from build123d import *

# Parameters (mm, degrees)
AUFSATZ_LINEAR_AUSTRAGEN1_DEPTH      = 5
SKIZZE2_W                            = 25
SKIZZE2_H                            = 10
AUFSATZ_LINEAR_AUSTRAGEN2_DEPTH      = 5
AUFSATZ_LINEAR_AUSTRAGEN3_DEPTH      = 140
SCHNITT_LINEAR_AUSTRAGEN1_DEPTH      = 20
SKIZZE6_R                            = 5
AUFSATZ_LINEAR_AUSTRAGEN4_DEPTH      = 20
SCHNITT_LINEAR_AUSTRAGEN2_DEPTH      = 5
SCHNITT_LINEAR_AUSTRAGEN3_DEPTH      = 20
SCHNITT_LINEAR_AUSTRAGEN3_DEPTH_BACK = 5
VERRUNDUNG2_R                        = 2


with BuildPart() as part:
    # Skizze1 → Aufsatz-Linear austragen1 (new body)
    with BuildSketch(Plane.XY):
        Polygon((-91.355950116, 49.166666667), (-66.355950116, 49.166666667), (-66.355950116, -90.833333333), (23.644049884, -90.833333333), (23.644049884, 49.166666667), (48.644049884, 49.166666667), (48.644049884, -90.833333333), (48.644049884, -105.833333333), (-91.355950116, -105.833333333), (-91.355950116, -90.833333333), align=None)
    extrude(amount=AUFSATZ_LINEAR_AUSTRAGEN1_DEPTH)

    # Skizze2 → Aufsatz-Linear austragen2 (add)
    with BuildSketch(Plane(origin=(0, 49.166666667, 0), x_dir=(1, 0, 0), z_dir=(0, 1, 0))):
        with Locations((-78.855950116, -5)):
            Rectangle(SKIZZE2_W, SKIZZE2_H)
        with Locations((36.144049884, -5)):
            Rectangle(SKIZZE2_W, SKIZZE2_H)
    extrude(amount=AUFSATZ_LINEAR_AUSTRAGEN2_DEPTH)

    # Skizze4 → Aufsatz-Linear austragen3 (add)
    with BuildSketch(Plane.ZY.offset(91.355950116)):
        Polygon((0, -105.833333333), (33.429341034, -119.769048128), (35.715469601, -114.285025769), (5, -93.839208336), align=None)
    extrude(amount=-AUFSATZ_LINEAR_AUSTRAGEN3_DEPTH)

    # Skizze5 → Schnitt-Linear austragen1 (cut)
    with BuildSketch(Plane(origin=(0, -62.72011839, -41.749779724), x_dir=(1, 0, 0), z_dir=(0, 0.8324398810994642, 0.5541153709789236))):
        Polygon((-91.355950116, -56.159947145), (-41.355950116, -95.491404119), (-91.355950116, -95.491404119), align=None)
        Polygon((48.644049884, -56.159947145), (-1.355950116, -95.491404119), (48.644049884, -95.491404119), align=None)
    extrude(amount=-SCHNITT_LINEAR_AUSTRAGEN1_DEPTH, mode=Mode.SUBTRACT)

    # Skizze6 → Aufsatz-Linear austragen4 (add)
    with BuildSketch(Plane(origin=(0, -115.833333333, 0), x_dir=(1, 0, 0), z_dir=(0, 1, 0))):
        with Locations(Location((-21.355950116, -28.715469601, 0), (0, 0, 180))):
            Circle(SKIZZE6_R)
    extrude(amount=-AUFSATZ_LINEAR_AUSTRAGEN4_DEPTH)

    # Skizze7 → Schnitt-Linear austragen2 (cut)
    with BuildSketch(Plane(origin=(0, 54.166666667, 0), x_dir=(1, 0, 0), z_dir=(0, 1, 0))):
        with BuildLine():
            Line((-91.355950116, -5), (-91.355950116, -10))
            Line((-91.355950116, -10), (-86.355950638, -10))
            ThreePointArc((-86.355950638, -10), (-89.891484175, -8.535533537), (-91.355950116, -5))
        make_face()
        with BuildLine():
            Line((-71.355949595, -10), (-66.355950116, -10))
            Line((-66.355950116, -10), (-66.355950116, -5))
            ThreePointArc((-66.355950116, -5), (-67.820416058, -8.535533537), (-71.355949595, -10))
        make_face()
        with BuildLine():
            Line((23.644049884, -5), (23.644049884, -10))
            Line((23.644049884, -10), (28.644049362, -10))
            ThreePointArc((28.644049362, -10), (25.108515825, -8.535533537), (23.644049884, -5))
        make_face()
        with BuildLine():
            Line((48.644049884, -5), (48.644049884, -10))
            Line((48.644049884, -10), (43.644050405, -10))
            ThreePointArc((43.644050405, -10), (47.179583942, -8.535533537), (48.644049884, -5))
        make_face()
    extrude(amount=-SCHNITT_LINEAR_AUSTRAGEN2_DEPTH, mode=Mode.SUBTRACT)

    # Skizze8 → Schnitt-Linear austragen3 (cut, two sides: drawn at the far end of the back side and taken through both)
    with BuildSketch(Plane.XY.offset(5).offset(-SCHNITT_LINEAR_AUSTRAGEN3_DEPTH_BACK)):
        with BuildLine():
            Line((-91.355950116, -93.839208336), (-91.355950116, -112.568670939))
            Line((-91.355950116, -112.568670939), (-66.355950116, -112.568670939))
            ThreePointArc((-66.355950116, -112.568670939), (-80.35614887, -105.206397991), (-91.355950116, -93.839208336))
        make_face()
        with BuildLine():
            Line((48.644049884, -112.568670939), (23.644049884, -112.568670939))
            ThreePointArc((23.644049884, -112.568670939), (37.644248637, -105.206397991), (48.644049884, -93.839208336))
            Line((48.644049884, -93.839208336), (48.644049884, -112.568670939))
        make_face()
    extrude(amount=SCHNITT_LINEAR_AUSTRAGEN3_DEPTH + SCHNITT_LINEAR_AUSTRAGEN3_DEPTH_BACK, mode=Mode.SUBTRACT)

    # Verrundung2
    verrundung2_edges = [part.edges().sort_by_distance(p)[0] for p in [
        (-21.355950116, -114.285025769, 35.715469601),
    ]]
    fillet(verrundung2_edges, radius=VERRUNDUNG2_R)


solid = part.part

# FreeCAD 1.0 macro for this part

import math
import FreeCAD as App
import Part
import Sketcher

V = App.Vector


def edges_at(feature, points):
    """Names of the edges that pass closest to the given points."""
    edges = feature.Shape.Edges
    near = lambda p: min(range(len(edges)), key=lambda i: edges[i].distToShape(Part.Vertex(*p))[0])
    return sorted({f"Edge{near(p) + 1}" for p in points})

doc = App.newDocument("Part")
body = doc.addObject("PartDesign::Body", "Body")

sketch1 = body.newObject("Sketcher::SketchObject", "Sketch")
sketch1.AttachmentSupport = (doc.getObject("XY_Plane"), [""])
sketch1.MapMode = "FlatFace"
sketch1.addGeometry([
    Part.LineSegment(V(-66.35595, 49.166667, 0), V(-91.35595, 49.166667, 0)),
    Part.LineSegment(V(-91.35595, 49.166667, 0), V(-91.35595, -105.833333, 0)),
    Part.LineSegment(V(-91.35595, -105.833333, 0), V(48.64405, -105.833333, 0)),
    Part.LineSegment(V(48.64405, -105.833333, 0), V(48.64405, 49.166667, 0)),
    Part.LineSegment(V(48.64405, 49.166667, 0), V(23.64405, 49.166667, 0)),
    Part.LineSegment(V(23.64405, 49.166667, 0), V(23.64405, -90.833333, 0)),
    Part.LineSegment(V(23.64405, -90.833333, 0), V(-66.35595, -90.833333, 0)),
    Part.LineSegment(V(-66.35595, -90.833333, 0), V(-66.35595, 49.166667, 0)),
], False)
sketch1.addConstraint([
    Sketcher.Constraint("Coincident", 0, 2, 1, 1),
    Sketcher.Constraint("Coincident", 1, 2, 2, 1),
    Sketcher.Constraint("Coincident", 2, 2, 3, 1),
    Sketcher.Constraint("Coincident", 3, 2, 4, 1),
    Sketcher.Constraint("Coincident", 4, 2, 5, 1),
    Sketcher.Constraint("Coincident", 5, 2, 6, 1),
    Sketcher.Constraint("Coincident", 6, 2, 7, 1),
    Sketcher.Constraint("Coincident", 7, 2, 0, 1),
    Sketcher.Constraint("Horizontal", 0),
    Sketcher.Constraint("Vertical", 1),
    Sketcher.Constraint("Horizontal", 2),
    Sketcher.Constraint("Vertical", 3),
    Sketcher.Constraint("Horizontal", 4),
    Sketcher.Constraint("Vertical", 5),
    Sketcher.Constraint("Horizontal", 6),
    Sketcher.Constraint("Vertical", 7),
    Sketcher.Constraint("Horizontal", 0, 2, 3, 2),
    Sketcher.Constraint("Equal", 0, 4),
    Sketcher.Constraint("Equal", 2, 5),
    Sketcher.Constraint("DistanceX", 0, 2, 0, 1, 25.0),
    Sketcher.Constraint("DistanceX", 2, 1, 2, 2, 140.0),
    Sketcher.Constraint("DistanceY", 1, 2, 1, 1, 155.0),
    Sketcher.Constraint("DistanceX", 0, 2, -1, 1, 91.35595),
    Sketcher.Constraint("DistanceY", -1, 1, 0, 2, 49.166667),
])
pad1 = body.newObject("PartDesign::Pad", "Pad")
pad1.Profile = sketch1
pad1.Length = 5

sketch2 = body.newObject("Sketcher::SketchObject", "Sketch001")
sketch2.AttachmentSupport = (doc.getObject("XZ_Plane"), [""])
sketch2.MapMode = "FlatFace"
sketch2.AttachmentOffset = App.Placement(V(0, 0, -49.166667), App.Rotation())
sketch2.addGeometry([
    Part.LineSegment(V(-91.35595, 0, 0), V(-91.35595, 10, 0)),
    Part.LineSegment(V(-91.35595, 10, 0), V(-66.35595, 10, 0)),
    Part.LineSegment(V(-66.35595, 10, 0), V(-66.35595, 0, 0)),
    Part.LineSegment(V(-66.35595, 0, 0), V(-91.35595, 0, 0)),
    Part.LineSegment(V(23.64405, 0, 0), V(23.64405, 10, 0)),
    Part.LineSegment(V(23.64405, 10, 0), V(48.64405, 10, 0)),
    Part.LineSegment(V(48.64405, 10, 0), V(48.64405, 0, 0)),
    Part.LineSegment(V(48.64405, 0, 0), V(23.64405, 0, 0)),
], False)
sketch2.addConstraint([
    Sketcher.Constraint("Coincident", 0, 2, 1, 1),
    Sketcher.Constraint("Coincident", 1, 2, 2, 1),
    Sketcher.Constraint("Coincident", 2, 2, 3, 1),
    Sketcher.Constraint("Coincident", 3, 2, 0, 1),
    Sketcher.Constraint("Coincident", 4, 2, 5, 1),
    Sketcher.Constraint("Coincident", 5, 2, 6, 1),
    Sketcher.Constraint("Coincident", 6, 2, 7, 1),
    Sketcher.Constraint("Coincident", 7, 2, 4, 1),
    Sketcher.Constraint("Vertical", 0),
    Sketcher.Constraint("Horizontal", 1),
    Sketcher.Constraint("Vertical", 2),
    Sketcher.Constraint("Horizontal", 3),
    Sketcher.Constraint("Vertical", 4),
    Sketcher.Constraint("Horizontal", 5),
    Sketcher.Constraint("Vertical", 6),
    Sketcher.Constraint("Horizontal", 7),
    Sketcher.Constraint("PointOnObject", 2, 2, -1),
    Sketcher.Constraint("PointOnObject", 6, 2, -1),
    Sketcher.Constraint("Horizontal", 1, 2, 4, 2),
    Sketcher.Constraint("Equal", 3, 5),
    Sketcher.Constraint("DistanceX", 1, 1, 1, 2, 25.0),
    Sketcher.Constraint("DistanceY", 0, 1, 0, 2, 10.0),
    Sketcher.Constraint("DistanceX", 1, 2, 4, 2, 90.0),
    Sketcher.Constraint("DistanceX", 0, 2, -1, 1, 91.35595),
])
pad2 = body.newObject("PartDesign::Pad", "Pad001")
pad2.Profile = sketch2
pad2.Length = 5
pad2.Reversed = True

sketch3 = body.newObject("Sketcher::SketchObject", "Sketch002")
sketch3.AttachmentSupport = (doc.getObject("YZ_Plane"), [""])
sketch3.MapMode = "FlatFace"
sketch3.AttachmentOffset = App.Placement(V(0, 0, -91.35595), App.Rotation())
sketch3.addGeometry([
    Part.LineSegment(V(-105.833333, 0, 0), V(-119.769048, 33.429341, 0)),
    Part.LineSegment(V(-119.769048, 33.429341, 0), V(-114.285026, 35.71547, 0)),
    Part.LineSegment(V(-114.285026, 35.71547, 0), V(-93.839208, 5, 0)),
    Part.LineSegment(V(-93.839208, 5, 0), V(-105.833333, 0, 0)),
], False)
sketch3.addConstraint([
    Sketcher.Constraint("Coincident", 0, 2, 1, 1),
    Sketcher.Constraint("Coincident", 1, 2, 2, 1),
    Sketcher.Constraint("Coincident", 2, 2, 3, 1),
    Sketcher.Constraint("Coincident", 3, 2, 0, 1),
    Sketcher.Constraint("PointOnObject", 3, 2, -1),
    Sketcher.Constraint("Perpendicular", 0, 1),
    Sketcher.Constraint("Parallel", 1, 3),
    Sketcher.Constraint("DistanceY", -1, 1, 2, 2, 5.0),
    Sketcher.Constraint("DistanceX", 0, 2, -1, 1, 119.769048),
    Sketcher.Constraint("DistanceY", -1, 1, 0, 2, 33.429341),
    Sketcher.Constraint("DistanceY", -1, 1, 1, 2, 35.71547),
    Sketcher.Constraint("DistanceX", 2, 2, -1, 1, 93.839208),
])
pad3 = body.newObject("PartDesign::Pad", "Pad002")
pad3.Profile = sketch3
pad3.Length = 140

sketch4 = body.newObject("Sketcher::SketchObject", "Sketch003")
sketch4.Placement = App.Placement(V(0, -62.720118, -41.74978), App.Rotation(V(1, 0, 0), V(0, 0.554115371, -0.832439881), V(0, 0.832439881, 0.554115371), "ZXY"))
sketch4.addGeometry([
    Part.LineSegment(V(-41.35595, -95.491404, 0), V(-91.35595, -56.159947, 0)),
    Part.LineSegment(V(-91.35595, -56.159947, 0), V(-91.35595, -95.491404, 0)),
    Part.LineSegment(V(-91.35595, -95.491404, 0), V(-41.35595, -95.491404, 0)),
    Part.LineSegment(V(48.64405, -56.159947, 0), V(-1.35595, -95.491404, 0)),
    Part.LineSegment(V(-1.35595, -95.491404, 0), V(48.64405, -95.491404, 0)),
    Part.LineSegment(V(48.64405, -95.491404, 0), V(48.64405, -56.159947, 0)),
], False)
sketch4.addConstraint([
    Sketcher.Constraint("Coincident", 0, 2, 1, 1),
    Sketcher.Constraint("Coincident", 1, 2, 2, 1),
    Sketcher.Constraint("Coincident", 2, 2, 0, 1),
    Sketcher.Constraint("Coincident", 3, 2, 4, 1),
    Sketcher.Constraint("Coincident", 4, 2, 5, 1),
    Sketcher.Constraint("Coincident", 5, 2, 3, 1),
    Sketcher.Constraint("Vertical", 1),
    Sketcher.Constraint("Horizontal", 2),
    Sketcher.Constraint("Horizontal", 4),
    Sketcher.Constraint("Vertical", 5),
    Sketcher.Constraint("Horizontal", 2, 2, 3, 2),
    Sketcher.Constraint("Horizontal", 0, 2, 5, 2),
    Sketcher.Constraint("Equal", 2, 4),
    Sketcher.Constraint("DistanceX", 2, 1, 2, 2, 50.0),
    Sketcher.Constraint("DistanceX", 2, 2, 3, 2, 40.0),
    Sketcher.Constraint("Distance", 0, 63.615749),
    Sketcher.Constraint("DistanceX", 0, 2, -1, 1, 91.35595),
    Sketcher.Constraint("DistanceY", 0, 2, -1, 1, 56.159947),
])
pocket1 = body.newObject("PartDesign::Pocket", "Pocket")
pocket1.Profile = sketch4
pocket1.Length = 20

sketch5 = body.newObject("Sketcher::SketchObject", "Sketch004")
sketch5.AttachmentSupport = (doc.getObject("XZ_Plane"), [""])
sketch5.MapMode = "FlatFace"
sketch5.AttachmentOffset = App.Placement(V(0, 0, 115.833333), App.Rotation())
sketch5.addGeometry(Part.Circle(V(-21.35595, 28.71547, 0), V(0, 0, 1), 5), False)
sketch5.addConstraint([
    Sketcher.Constraint("Diameter", 0, 10.0),
    Sketcher.Constraint("DistanceX", 0, 3, -1, 1, 21.35595),
    Sketcher.Constraint("DistanceY", -1, 1, 0, 3, 28.71547),
])
pad4 = body.newObject("PartDesign::Pad", "Pad003")
pad4.Profile = sketch5
pad4.Length = 20

sketch6 = body.newObject("Sketcher::SketchObject", "Sketch005")
sketch6.AttachmentSupport = (doc.getObject("XZ_Plane"), [""])
sketch6.MapMode = "FlatFace"
sketch6.AttachmentOffset = App.Placement(V(0, 0, -54.166667), App.Rotation())
sketch6.addGeometry([
    Part.LineSegment(V(-91.35595, 5, 0), V(-91.35595, 10, 0)),
    Part.LineSegment(V(-91.35595, 10, 0), V(-86.355951, 10, 0)),
    Part.ArcOfCircle(Part.Circle(V(-86.35595, 5, 0), V(0, 0, 1), 5), math.radians(90.00001), math.radians(179.999996)),
    Part.LineSegment(V(-71.35595, 10, 0), V(-66.35595, 10, 0)),
    Part.LineSegment(V(-66.35595, 10, 0), V(-66.35595, 5, 0)),
    Part.ArcOfCircle(Part.Circle(V(-71.35595, 5, 0), V(0, 0, 1), 5), math.radians(0.000004), math.radians(89.99999)),
    Part.LineSegment(V(23.64405, 5, 0), V(23.64405, 10, 0)),
    Part.LineSegment(V(23.64405, 10, 0), V(28.644049, 10, 0)),
    Part.ArcOfCircle(Part.Circle(V(28.64405, 5, 0), V(0, 0, 1), 5), math.radians(90.00001), math.radians(179.999996)),
    Part.LineSegment(V(48.64405, 10, 0), V(48.64405, 5, 0)),
    Part.ArcOfCircle(Part.Circle(V(43.64405, 5, 0), V(0, 0, 1), 5), math.radians(0.000004), math.radians(89.99999)),
    Part.LineSegment(V(43.64405, 10, 0), V(48.64405, 10, 0)),
], False)
sketch6.addConstraint([
    Sketcher.Constraint("Coincident", 0, 2, 1, 1),
    Sketcher.Constraint("Tangent", 1, 2, 2, 1),
    Sketcher.Constraint("Tangent", 2, 2, 0, 1),
    Sketcher.Constraint("Coincident", 3, 2, 4, 1),
    Sketcher.Constraint("Tangent", 4, 2, 5, 1),
    Sketcher.Constraint("Tangent", 5, 2, 3, 1),
    Sketcher.Constraint("Coincident", 6, 2, 7, 1),
    Sketcher.Constraint("Tangent", 7, 2, 8, 1),
    Sketcher.Constraint("Tangent", 8, 2, 6, 1),
    Sketcher.Constraint("Tangent", 9, 2, 10, 1),
    Sketcher.Constraint("Tangent", 10, 2, 11, 1),
    Sketcher.Constraint("Coincident", 11, 2, 9, 1),
    Sketcher.Constraint("Vertical", 0),
    Sketcher.Constraint("Horizontal", 1),
    Sketcher.Constraint("Horizontal", 3),
    Sketcher.Constraint("Vertical", 4),
    Sketcher.Constraint("Vertical", 6),
    Sketcher.Constraint("Horizontal", 7),
    Sketcher.Constraint("Vertical", 9),
    Sketcher.Constraint("Horizontal", 11),
    Sketcher.Constraint("Equal", 2, 5),
    Sketcher.Constraint("Equal", 5, 8),
    Sketcher.Constraint("Equal", 8, 10),
    Sketcher.Constraint("Horizontal", 2, 3, 5, 3),
    Sketcher.Constraint("Horizontal", 5, 3, 8, 3),
    Sketcher.Constraint("Horizontal", 8, 3, 10, 3),
    Sketcher.Constraint("Radius", 2, 5.0),
    Sketcher.Constraint("DistanceY", -1, 1, 2, 3, 5.0),
    Sketcher.Constraint("DistanceX", 2, 3, 5, 3, 14.999999),
    Sketcher.Constraint("DistanceX", 5, 3, 8, 3, 100.000001),
    Sketcher.Constraint("DistanceX", 8, 3, 10, 3, 14.999999),
    Sketcher.Constraint("DistanceX", 2, 3, -1, 1, 86.35595),
])
pocket2 = body.newObject("PartDesign::Pocket", "Pocket001")
pocket2.Profile = sketch6
pocket2.Length = 5
pocket2.Reversed = True

sketch7 = body.newObject("Sketcher::SketchObject", "Sketch006")
sketch7.AttachmentSupport = (doc.getObject("XY_Plane"), [""])
sketch7.MapMode = "FlatFace"
sketch7.AttachmentOffset = App.Placement(V(0, 0, 5), App.Rotation())
sketch7.addGeometry([
    Part.LineSegment(V(-91.35595, -93.839208, 0), V(-91.35595, -112.568671, 0)),
    Part.LineSegment(V(-91.35595, -112.568671, 0), V(-66.35595, -112.568671, 0)),
    Part.ArcOfCircle(Part.Circle(V(-50.377192, -65.190625, 0), V(0, 0, 1), 50), math.radians(-145.042289), math.radians(-108.637235)),
    Part.LineSegment(V(23.64405, -112.568671, 0), V(48.64405, -112.568671, 0)),
    Part.LineSegment(V(48.64405, -112.568671, 0), V(48.64405, -93.839208, 0)),
    Part.ArcOfCircle(Part.Circle(V(7.665291, -65.190625, 0), V(0, 0, 1), 50), math.radians(-71.362765), math.radians(-34.957711)),
], False)
sketch7.addConstraint([
    Sketcher.Constraint("Coincident", 0, 2, 1, 1),
    Sketcher.Constraint("Coincident", 1, 2, 2, 2),
    Sketcher.Constraint("Coincident", 2, 1, 0, 1),
    Sketcher.Constraint("Coincident", 3, 2, 4, 1),
    Sketcher.Constraint("Coincident", 4, 2, 5, 2),
    Sketcher.Constraint("Coincident", 5, 1, 3, 1),
    Sketcher.Constraint("Vertical", 0),
    Sketcher.Constraint("Horizontal", 1),
    Sketcher.Constraint("Horizontal", 3),
    Sketcher.Constraint("Vertical", 4),
    Sketcher.Constraint("Equal", 2, 5),
    Sketcher.Constraint("Horizontal", 2, 3, 5, 3),
    Sketcher.Constraint("Horizontal", 1, 2, 3, 2),
    Sketcher.Constraint("Horizontal", 2, 1, 4, 2),
    Sketcher.Constraint("Radius", 2, 50.0),
    Sketcher.Constraint("DistanceX", 1, 1, 1, 2, 25.0),
    Sketcher.Constraint("DistanceX", 1, 2, 3, 2, 115.0),
    Sketcher.Constraint("DistanceY", 0, 2, 0, 1, 18.729463),
    Sketcher.Constraint("DistanceX", 2, 3, -1, 1, 50.377192),
    Sketcher.Constraint("DistanceY", 0, 2, -1, 1, 112.568671),
])
pocket3 = body.newObject("PartDesign::Pocket", "Pocket002")
pocket3.Profile = sketch7
pocket3.Type = "ThroughAll"
pocket3.Midplane = True
doc.recompute()

fillet = body.newObject("PartDesign::Fillet", "Fillet")
fillet.Base = (pocket3, edges_at(pocket3, [(-21.356, -114.285, 35.715)]))
fillet.Radius = 2

doc.recompute()
